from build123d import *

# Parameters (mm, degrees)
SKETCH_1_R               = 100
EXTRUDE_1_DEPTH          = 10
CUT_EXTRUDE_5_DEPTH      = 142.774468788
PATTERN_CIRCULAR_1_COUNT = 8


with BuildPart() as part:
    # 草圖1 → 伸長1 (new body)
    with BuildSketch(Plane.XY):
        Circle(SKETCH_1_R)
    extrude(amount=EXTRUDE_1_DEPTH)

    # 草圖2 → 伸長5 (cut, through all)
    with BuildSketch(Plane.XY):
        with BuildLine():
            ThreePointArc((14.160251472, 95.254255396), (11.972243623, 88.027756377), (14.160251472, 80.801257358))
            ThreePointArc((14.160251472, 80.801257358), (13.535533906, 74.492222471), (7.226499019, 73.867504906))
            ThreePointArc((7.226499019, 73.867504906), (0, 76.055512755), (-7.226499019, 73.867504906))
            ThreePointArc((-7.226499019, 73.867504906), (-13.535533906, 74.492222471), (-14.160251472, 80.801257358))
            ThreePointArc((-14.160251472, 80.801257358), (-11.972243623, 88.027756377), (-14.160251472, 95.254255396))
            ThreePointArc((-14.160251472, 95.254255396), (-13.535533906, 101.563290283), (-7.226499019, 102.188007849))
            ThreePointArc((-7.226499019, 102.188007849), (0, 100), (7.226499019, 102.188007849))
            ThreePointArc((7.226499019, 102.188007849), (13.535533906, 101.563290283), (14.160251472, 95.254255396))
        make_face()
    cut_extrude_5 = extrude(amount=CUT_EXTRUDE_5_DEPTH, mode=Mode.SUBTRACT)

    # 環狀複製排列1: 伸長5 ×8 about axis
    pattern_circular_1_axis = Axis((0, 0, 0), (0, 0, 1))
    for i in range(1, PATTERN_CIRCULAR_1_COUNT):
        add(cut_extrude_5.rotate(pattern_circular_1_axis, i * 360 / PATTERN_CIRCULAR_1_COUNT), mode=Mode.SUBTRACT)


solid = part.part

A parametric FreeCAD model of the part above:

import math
import FreeCAD as App
import Part
import Sketcher

doc = App.newDocument("Part")
body = doc.addObject("PartDesign::Body", "Body")

sketch1 = body.newObject("Sketcher::SketchObject", "Sketch")
sketch1.AttachmentSupport = (doc.getObject("XY_Plane"), [""])
sketch1.MapMode = "FlatFace"
sketch1.addGeometry(Part.Circle(App.Vector(0, 0, 0), App.Vector(0, 0, 1), 100), False)
sketch1.addConstraint([
    Sketcher.Constraint("Coincident", 0, 3, -1, 1),
    Sketcher.Constraint("Diameter", 0, 200.0),
])
pad1 = body.newObject("PartDesign::Pad", "Pad")
pad1.Profile = sketch1
pad1.Length = 10

sketch2 = body.newObject("Sketcher::SketchObject", "Sketch001")
sketch2.AttachmentSupport = (doc.getObject("XY_Plane"), [""])
sketch2.MapMode = "FlatFace"
sketch2.addGeometry([
    Part.ArcOfCircle(Part.Circle(App.Vector(25, 88, 0), App.Vector(0, 0, 1), 13), math.radians(146), math.radians(214)),
    Part.ArcOfCircle(Part.Circle(App.Vector(10, 98, 0), App.Vector(0, 0, 1), 5), math.radians(-34), math.radians(124)),
    Part.ArcOfCircle(Part.Circle(App.Vector(0, 113, 0), App.Vector(0, 0, 1), 13), math.radians(-124), math.radians(-56)),
    Part.ArcOfCircle(Part.Circle(App.Vector(-10, 98, 0), App.Vector(0, 0, 1), 5), math.radians(56), math.radians(214)),
    Part.ArcOfCircle(Part.Circle(App.Vector(-25, 88, 0), App.Vector(0, 0, 1), 13), math.radians(-34), math.radians(34)),
    Part.ArcOfCircle(Part.Circle(App.Vector(-10, 78, 0), App.Vector(0, 0, 1), 5), math.radians(146), math.radians(304)),
    Part.ArcOfCircle(Part.Circle(App.Vector(0, 63, 0), App.Vector(0, 0, 1), 13), math.radians(56), math.radians(124)),
    Part.ArcOfCircle(Part.Circle(App.Vector(10, 78, 0), App.Vector(0, 0, 1), 5), math.radians(-124), math.radians(34)),
], False)
sketch2.addConstraint([
    Sketcher.Constraint("Tangent", 0, 1, 1, 1),
    Sketcher.Constraint("Tangent", 1, 2, 2, 2),
    Sketcher.Constraint("Tangent", 2, 1, 3, 1),
    Sketcher.Constraint("Tangent", 3, 2, 4, 2),
    Sketcher.Constraint("Tangent", 4, 1, 5, 1),
    Sketcher.Constraint("Tangent", 5, 2, 6, 2),
    Sketcher.Constraint("Tangent", 6, 1, 7, 1),
    Sketcher.Constraint("Tangent", 7, 2, 0, 2),
    Sketcher.Constraint("Equal", 0, 2),
    Sketcher.Constraint("Equal", 1, 3),
    Sketcher.Constraint("Equal", 2, 4),
    Sketcher.Constraint("Equal", 3, 5),
    Sketcher.Constraint("Equal", 4, 6),
    Sketcher.Constraint("Equal", 5, 7),
    Sketcher.Constraint("Symmetric", 1, 3, 3, 3, -2),
    Sketcher.Constraint("Symmetric", 5, 3, 7, 3, -2),
    Sketcher.Constraint("Vertical", 3, 3, 5, 3),
    Sketcher.Constraint("Radius", 1, 5.0),
    Sketcher.Constraint("DistanceX", -1, 1, 0, 3, 25.0),
    Sketcher.Constraint("DistanceX", -1, 1, 1, 3, 10.0),
    Sketcher.Constraint("DistanceY", 0, 3, 1, 3, 10.0),
    Sketcher.Constraint("DistanceY", -1, 1, 0, 3, 88.027756),
])
pocket1 = body.newObject("PartDesign::Pocket", "Pocket")
pocket1.Profile = sketch2
pocket1.Type = "ThroughAll"
pocket1.Reversed = True
doc.recompute()

polarpattern = body.newObject("PartDesign::PolarPattern", "PolarPattern")
polarpattern.Originals = [pocket1]
polarpattern.Axis = (doc.getObject("Z_Axis"), [""])
polarpattern.Angle = 360
polarpattern.Occurrences = 8
body.Tip = polarpattern

doc.recompute()
